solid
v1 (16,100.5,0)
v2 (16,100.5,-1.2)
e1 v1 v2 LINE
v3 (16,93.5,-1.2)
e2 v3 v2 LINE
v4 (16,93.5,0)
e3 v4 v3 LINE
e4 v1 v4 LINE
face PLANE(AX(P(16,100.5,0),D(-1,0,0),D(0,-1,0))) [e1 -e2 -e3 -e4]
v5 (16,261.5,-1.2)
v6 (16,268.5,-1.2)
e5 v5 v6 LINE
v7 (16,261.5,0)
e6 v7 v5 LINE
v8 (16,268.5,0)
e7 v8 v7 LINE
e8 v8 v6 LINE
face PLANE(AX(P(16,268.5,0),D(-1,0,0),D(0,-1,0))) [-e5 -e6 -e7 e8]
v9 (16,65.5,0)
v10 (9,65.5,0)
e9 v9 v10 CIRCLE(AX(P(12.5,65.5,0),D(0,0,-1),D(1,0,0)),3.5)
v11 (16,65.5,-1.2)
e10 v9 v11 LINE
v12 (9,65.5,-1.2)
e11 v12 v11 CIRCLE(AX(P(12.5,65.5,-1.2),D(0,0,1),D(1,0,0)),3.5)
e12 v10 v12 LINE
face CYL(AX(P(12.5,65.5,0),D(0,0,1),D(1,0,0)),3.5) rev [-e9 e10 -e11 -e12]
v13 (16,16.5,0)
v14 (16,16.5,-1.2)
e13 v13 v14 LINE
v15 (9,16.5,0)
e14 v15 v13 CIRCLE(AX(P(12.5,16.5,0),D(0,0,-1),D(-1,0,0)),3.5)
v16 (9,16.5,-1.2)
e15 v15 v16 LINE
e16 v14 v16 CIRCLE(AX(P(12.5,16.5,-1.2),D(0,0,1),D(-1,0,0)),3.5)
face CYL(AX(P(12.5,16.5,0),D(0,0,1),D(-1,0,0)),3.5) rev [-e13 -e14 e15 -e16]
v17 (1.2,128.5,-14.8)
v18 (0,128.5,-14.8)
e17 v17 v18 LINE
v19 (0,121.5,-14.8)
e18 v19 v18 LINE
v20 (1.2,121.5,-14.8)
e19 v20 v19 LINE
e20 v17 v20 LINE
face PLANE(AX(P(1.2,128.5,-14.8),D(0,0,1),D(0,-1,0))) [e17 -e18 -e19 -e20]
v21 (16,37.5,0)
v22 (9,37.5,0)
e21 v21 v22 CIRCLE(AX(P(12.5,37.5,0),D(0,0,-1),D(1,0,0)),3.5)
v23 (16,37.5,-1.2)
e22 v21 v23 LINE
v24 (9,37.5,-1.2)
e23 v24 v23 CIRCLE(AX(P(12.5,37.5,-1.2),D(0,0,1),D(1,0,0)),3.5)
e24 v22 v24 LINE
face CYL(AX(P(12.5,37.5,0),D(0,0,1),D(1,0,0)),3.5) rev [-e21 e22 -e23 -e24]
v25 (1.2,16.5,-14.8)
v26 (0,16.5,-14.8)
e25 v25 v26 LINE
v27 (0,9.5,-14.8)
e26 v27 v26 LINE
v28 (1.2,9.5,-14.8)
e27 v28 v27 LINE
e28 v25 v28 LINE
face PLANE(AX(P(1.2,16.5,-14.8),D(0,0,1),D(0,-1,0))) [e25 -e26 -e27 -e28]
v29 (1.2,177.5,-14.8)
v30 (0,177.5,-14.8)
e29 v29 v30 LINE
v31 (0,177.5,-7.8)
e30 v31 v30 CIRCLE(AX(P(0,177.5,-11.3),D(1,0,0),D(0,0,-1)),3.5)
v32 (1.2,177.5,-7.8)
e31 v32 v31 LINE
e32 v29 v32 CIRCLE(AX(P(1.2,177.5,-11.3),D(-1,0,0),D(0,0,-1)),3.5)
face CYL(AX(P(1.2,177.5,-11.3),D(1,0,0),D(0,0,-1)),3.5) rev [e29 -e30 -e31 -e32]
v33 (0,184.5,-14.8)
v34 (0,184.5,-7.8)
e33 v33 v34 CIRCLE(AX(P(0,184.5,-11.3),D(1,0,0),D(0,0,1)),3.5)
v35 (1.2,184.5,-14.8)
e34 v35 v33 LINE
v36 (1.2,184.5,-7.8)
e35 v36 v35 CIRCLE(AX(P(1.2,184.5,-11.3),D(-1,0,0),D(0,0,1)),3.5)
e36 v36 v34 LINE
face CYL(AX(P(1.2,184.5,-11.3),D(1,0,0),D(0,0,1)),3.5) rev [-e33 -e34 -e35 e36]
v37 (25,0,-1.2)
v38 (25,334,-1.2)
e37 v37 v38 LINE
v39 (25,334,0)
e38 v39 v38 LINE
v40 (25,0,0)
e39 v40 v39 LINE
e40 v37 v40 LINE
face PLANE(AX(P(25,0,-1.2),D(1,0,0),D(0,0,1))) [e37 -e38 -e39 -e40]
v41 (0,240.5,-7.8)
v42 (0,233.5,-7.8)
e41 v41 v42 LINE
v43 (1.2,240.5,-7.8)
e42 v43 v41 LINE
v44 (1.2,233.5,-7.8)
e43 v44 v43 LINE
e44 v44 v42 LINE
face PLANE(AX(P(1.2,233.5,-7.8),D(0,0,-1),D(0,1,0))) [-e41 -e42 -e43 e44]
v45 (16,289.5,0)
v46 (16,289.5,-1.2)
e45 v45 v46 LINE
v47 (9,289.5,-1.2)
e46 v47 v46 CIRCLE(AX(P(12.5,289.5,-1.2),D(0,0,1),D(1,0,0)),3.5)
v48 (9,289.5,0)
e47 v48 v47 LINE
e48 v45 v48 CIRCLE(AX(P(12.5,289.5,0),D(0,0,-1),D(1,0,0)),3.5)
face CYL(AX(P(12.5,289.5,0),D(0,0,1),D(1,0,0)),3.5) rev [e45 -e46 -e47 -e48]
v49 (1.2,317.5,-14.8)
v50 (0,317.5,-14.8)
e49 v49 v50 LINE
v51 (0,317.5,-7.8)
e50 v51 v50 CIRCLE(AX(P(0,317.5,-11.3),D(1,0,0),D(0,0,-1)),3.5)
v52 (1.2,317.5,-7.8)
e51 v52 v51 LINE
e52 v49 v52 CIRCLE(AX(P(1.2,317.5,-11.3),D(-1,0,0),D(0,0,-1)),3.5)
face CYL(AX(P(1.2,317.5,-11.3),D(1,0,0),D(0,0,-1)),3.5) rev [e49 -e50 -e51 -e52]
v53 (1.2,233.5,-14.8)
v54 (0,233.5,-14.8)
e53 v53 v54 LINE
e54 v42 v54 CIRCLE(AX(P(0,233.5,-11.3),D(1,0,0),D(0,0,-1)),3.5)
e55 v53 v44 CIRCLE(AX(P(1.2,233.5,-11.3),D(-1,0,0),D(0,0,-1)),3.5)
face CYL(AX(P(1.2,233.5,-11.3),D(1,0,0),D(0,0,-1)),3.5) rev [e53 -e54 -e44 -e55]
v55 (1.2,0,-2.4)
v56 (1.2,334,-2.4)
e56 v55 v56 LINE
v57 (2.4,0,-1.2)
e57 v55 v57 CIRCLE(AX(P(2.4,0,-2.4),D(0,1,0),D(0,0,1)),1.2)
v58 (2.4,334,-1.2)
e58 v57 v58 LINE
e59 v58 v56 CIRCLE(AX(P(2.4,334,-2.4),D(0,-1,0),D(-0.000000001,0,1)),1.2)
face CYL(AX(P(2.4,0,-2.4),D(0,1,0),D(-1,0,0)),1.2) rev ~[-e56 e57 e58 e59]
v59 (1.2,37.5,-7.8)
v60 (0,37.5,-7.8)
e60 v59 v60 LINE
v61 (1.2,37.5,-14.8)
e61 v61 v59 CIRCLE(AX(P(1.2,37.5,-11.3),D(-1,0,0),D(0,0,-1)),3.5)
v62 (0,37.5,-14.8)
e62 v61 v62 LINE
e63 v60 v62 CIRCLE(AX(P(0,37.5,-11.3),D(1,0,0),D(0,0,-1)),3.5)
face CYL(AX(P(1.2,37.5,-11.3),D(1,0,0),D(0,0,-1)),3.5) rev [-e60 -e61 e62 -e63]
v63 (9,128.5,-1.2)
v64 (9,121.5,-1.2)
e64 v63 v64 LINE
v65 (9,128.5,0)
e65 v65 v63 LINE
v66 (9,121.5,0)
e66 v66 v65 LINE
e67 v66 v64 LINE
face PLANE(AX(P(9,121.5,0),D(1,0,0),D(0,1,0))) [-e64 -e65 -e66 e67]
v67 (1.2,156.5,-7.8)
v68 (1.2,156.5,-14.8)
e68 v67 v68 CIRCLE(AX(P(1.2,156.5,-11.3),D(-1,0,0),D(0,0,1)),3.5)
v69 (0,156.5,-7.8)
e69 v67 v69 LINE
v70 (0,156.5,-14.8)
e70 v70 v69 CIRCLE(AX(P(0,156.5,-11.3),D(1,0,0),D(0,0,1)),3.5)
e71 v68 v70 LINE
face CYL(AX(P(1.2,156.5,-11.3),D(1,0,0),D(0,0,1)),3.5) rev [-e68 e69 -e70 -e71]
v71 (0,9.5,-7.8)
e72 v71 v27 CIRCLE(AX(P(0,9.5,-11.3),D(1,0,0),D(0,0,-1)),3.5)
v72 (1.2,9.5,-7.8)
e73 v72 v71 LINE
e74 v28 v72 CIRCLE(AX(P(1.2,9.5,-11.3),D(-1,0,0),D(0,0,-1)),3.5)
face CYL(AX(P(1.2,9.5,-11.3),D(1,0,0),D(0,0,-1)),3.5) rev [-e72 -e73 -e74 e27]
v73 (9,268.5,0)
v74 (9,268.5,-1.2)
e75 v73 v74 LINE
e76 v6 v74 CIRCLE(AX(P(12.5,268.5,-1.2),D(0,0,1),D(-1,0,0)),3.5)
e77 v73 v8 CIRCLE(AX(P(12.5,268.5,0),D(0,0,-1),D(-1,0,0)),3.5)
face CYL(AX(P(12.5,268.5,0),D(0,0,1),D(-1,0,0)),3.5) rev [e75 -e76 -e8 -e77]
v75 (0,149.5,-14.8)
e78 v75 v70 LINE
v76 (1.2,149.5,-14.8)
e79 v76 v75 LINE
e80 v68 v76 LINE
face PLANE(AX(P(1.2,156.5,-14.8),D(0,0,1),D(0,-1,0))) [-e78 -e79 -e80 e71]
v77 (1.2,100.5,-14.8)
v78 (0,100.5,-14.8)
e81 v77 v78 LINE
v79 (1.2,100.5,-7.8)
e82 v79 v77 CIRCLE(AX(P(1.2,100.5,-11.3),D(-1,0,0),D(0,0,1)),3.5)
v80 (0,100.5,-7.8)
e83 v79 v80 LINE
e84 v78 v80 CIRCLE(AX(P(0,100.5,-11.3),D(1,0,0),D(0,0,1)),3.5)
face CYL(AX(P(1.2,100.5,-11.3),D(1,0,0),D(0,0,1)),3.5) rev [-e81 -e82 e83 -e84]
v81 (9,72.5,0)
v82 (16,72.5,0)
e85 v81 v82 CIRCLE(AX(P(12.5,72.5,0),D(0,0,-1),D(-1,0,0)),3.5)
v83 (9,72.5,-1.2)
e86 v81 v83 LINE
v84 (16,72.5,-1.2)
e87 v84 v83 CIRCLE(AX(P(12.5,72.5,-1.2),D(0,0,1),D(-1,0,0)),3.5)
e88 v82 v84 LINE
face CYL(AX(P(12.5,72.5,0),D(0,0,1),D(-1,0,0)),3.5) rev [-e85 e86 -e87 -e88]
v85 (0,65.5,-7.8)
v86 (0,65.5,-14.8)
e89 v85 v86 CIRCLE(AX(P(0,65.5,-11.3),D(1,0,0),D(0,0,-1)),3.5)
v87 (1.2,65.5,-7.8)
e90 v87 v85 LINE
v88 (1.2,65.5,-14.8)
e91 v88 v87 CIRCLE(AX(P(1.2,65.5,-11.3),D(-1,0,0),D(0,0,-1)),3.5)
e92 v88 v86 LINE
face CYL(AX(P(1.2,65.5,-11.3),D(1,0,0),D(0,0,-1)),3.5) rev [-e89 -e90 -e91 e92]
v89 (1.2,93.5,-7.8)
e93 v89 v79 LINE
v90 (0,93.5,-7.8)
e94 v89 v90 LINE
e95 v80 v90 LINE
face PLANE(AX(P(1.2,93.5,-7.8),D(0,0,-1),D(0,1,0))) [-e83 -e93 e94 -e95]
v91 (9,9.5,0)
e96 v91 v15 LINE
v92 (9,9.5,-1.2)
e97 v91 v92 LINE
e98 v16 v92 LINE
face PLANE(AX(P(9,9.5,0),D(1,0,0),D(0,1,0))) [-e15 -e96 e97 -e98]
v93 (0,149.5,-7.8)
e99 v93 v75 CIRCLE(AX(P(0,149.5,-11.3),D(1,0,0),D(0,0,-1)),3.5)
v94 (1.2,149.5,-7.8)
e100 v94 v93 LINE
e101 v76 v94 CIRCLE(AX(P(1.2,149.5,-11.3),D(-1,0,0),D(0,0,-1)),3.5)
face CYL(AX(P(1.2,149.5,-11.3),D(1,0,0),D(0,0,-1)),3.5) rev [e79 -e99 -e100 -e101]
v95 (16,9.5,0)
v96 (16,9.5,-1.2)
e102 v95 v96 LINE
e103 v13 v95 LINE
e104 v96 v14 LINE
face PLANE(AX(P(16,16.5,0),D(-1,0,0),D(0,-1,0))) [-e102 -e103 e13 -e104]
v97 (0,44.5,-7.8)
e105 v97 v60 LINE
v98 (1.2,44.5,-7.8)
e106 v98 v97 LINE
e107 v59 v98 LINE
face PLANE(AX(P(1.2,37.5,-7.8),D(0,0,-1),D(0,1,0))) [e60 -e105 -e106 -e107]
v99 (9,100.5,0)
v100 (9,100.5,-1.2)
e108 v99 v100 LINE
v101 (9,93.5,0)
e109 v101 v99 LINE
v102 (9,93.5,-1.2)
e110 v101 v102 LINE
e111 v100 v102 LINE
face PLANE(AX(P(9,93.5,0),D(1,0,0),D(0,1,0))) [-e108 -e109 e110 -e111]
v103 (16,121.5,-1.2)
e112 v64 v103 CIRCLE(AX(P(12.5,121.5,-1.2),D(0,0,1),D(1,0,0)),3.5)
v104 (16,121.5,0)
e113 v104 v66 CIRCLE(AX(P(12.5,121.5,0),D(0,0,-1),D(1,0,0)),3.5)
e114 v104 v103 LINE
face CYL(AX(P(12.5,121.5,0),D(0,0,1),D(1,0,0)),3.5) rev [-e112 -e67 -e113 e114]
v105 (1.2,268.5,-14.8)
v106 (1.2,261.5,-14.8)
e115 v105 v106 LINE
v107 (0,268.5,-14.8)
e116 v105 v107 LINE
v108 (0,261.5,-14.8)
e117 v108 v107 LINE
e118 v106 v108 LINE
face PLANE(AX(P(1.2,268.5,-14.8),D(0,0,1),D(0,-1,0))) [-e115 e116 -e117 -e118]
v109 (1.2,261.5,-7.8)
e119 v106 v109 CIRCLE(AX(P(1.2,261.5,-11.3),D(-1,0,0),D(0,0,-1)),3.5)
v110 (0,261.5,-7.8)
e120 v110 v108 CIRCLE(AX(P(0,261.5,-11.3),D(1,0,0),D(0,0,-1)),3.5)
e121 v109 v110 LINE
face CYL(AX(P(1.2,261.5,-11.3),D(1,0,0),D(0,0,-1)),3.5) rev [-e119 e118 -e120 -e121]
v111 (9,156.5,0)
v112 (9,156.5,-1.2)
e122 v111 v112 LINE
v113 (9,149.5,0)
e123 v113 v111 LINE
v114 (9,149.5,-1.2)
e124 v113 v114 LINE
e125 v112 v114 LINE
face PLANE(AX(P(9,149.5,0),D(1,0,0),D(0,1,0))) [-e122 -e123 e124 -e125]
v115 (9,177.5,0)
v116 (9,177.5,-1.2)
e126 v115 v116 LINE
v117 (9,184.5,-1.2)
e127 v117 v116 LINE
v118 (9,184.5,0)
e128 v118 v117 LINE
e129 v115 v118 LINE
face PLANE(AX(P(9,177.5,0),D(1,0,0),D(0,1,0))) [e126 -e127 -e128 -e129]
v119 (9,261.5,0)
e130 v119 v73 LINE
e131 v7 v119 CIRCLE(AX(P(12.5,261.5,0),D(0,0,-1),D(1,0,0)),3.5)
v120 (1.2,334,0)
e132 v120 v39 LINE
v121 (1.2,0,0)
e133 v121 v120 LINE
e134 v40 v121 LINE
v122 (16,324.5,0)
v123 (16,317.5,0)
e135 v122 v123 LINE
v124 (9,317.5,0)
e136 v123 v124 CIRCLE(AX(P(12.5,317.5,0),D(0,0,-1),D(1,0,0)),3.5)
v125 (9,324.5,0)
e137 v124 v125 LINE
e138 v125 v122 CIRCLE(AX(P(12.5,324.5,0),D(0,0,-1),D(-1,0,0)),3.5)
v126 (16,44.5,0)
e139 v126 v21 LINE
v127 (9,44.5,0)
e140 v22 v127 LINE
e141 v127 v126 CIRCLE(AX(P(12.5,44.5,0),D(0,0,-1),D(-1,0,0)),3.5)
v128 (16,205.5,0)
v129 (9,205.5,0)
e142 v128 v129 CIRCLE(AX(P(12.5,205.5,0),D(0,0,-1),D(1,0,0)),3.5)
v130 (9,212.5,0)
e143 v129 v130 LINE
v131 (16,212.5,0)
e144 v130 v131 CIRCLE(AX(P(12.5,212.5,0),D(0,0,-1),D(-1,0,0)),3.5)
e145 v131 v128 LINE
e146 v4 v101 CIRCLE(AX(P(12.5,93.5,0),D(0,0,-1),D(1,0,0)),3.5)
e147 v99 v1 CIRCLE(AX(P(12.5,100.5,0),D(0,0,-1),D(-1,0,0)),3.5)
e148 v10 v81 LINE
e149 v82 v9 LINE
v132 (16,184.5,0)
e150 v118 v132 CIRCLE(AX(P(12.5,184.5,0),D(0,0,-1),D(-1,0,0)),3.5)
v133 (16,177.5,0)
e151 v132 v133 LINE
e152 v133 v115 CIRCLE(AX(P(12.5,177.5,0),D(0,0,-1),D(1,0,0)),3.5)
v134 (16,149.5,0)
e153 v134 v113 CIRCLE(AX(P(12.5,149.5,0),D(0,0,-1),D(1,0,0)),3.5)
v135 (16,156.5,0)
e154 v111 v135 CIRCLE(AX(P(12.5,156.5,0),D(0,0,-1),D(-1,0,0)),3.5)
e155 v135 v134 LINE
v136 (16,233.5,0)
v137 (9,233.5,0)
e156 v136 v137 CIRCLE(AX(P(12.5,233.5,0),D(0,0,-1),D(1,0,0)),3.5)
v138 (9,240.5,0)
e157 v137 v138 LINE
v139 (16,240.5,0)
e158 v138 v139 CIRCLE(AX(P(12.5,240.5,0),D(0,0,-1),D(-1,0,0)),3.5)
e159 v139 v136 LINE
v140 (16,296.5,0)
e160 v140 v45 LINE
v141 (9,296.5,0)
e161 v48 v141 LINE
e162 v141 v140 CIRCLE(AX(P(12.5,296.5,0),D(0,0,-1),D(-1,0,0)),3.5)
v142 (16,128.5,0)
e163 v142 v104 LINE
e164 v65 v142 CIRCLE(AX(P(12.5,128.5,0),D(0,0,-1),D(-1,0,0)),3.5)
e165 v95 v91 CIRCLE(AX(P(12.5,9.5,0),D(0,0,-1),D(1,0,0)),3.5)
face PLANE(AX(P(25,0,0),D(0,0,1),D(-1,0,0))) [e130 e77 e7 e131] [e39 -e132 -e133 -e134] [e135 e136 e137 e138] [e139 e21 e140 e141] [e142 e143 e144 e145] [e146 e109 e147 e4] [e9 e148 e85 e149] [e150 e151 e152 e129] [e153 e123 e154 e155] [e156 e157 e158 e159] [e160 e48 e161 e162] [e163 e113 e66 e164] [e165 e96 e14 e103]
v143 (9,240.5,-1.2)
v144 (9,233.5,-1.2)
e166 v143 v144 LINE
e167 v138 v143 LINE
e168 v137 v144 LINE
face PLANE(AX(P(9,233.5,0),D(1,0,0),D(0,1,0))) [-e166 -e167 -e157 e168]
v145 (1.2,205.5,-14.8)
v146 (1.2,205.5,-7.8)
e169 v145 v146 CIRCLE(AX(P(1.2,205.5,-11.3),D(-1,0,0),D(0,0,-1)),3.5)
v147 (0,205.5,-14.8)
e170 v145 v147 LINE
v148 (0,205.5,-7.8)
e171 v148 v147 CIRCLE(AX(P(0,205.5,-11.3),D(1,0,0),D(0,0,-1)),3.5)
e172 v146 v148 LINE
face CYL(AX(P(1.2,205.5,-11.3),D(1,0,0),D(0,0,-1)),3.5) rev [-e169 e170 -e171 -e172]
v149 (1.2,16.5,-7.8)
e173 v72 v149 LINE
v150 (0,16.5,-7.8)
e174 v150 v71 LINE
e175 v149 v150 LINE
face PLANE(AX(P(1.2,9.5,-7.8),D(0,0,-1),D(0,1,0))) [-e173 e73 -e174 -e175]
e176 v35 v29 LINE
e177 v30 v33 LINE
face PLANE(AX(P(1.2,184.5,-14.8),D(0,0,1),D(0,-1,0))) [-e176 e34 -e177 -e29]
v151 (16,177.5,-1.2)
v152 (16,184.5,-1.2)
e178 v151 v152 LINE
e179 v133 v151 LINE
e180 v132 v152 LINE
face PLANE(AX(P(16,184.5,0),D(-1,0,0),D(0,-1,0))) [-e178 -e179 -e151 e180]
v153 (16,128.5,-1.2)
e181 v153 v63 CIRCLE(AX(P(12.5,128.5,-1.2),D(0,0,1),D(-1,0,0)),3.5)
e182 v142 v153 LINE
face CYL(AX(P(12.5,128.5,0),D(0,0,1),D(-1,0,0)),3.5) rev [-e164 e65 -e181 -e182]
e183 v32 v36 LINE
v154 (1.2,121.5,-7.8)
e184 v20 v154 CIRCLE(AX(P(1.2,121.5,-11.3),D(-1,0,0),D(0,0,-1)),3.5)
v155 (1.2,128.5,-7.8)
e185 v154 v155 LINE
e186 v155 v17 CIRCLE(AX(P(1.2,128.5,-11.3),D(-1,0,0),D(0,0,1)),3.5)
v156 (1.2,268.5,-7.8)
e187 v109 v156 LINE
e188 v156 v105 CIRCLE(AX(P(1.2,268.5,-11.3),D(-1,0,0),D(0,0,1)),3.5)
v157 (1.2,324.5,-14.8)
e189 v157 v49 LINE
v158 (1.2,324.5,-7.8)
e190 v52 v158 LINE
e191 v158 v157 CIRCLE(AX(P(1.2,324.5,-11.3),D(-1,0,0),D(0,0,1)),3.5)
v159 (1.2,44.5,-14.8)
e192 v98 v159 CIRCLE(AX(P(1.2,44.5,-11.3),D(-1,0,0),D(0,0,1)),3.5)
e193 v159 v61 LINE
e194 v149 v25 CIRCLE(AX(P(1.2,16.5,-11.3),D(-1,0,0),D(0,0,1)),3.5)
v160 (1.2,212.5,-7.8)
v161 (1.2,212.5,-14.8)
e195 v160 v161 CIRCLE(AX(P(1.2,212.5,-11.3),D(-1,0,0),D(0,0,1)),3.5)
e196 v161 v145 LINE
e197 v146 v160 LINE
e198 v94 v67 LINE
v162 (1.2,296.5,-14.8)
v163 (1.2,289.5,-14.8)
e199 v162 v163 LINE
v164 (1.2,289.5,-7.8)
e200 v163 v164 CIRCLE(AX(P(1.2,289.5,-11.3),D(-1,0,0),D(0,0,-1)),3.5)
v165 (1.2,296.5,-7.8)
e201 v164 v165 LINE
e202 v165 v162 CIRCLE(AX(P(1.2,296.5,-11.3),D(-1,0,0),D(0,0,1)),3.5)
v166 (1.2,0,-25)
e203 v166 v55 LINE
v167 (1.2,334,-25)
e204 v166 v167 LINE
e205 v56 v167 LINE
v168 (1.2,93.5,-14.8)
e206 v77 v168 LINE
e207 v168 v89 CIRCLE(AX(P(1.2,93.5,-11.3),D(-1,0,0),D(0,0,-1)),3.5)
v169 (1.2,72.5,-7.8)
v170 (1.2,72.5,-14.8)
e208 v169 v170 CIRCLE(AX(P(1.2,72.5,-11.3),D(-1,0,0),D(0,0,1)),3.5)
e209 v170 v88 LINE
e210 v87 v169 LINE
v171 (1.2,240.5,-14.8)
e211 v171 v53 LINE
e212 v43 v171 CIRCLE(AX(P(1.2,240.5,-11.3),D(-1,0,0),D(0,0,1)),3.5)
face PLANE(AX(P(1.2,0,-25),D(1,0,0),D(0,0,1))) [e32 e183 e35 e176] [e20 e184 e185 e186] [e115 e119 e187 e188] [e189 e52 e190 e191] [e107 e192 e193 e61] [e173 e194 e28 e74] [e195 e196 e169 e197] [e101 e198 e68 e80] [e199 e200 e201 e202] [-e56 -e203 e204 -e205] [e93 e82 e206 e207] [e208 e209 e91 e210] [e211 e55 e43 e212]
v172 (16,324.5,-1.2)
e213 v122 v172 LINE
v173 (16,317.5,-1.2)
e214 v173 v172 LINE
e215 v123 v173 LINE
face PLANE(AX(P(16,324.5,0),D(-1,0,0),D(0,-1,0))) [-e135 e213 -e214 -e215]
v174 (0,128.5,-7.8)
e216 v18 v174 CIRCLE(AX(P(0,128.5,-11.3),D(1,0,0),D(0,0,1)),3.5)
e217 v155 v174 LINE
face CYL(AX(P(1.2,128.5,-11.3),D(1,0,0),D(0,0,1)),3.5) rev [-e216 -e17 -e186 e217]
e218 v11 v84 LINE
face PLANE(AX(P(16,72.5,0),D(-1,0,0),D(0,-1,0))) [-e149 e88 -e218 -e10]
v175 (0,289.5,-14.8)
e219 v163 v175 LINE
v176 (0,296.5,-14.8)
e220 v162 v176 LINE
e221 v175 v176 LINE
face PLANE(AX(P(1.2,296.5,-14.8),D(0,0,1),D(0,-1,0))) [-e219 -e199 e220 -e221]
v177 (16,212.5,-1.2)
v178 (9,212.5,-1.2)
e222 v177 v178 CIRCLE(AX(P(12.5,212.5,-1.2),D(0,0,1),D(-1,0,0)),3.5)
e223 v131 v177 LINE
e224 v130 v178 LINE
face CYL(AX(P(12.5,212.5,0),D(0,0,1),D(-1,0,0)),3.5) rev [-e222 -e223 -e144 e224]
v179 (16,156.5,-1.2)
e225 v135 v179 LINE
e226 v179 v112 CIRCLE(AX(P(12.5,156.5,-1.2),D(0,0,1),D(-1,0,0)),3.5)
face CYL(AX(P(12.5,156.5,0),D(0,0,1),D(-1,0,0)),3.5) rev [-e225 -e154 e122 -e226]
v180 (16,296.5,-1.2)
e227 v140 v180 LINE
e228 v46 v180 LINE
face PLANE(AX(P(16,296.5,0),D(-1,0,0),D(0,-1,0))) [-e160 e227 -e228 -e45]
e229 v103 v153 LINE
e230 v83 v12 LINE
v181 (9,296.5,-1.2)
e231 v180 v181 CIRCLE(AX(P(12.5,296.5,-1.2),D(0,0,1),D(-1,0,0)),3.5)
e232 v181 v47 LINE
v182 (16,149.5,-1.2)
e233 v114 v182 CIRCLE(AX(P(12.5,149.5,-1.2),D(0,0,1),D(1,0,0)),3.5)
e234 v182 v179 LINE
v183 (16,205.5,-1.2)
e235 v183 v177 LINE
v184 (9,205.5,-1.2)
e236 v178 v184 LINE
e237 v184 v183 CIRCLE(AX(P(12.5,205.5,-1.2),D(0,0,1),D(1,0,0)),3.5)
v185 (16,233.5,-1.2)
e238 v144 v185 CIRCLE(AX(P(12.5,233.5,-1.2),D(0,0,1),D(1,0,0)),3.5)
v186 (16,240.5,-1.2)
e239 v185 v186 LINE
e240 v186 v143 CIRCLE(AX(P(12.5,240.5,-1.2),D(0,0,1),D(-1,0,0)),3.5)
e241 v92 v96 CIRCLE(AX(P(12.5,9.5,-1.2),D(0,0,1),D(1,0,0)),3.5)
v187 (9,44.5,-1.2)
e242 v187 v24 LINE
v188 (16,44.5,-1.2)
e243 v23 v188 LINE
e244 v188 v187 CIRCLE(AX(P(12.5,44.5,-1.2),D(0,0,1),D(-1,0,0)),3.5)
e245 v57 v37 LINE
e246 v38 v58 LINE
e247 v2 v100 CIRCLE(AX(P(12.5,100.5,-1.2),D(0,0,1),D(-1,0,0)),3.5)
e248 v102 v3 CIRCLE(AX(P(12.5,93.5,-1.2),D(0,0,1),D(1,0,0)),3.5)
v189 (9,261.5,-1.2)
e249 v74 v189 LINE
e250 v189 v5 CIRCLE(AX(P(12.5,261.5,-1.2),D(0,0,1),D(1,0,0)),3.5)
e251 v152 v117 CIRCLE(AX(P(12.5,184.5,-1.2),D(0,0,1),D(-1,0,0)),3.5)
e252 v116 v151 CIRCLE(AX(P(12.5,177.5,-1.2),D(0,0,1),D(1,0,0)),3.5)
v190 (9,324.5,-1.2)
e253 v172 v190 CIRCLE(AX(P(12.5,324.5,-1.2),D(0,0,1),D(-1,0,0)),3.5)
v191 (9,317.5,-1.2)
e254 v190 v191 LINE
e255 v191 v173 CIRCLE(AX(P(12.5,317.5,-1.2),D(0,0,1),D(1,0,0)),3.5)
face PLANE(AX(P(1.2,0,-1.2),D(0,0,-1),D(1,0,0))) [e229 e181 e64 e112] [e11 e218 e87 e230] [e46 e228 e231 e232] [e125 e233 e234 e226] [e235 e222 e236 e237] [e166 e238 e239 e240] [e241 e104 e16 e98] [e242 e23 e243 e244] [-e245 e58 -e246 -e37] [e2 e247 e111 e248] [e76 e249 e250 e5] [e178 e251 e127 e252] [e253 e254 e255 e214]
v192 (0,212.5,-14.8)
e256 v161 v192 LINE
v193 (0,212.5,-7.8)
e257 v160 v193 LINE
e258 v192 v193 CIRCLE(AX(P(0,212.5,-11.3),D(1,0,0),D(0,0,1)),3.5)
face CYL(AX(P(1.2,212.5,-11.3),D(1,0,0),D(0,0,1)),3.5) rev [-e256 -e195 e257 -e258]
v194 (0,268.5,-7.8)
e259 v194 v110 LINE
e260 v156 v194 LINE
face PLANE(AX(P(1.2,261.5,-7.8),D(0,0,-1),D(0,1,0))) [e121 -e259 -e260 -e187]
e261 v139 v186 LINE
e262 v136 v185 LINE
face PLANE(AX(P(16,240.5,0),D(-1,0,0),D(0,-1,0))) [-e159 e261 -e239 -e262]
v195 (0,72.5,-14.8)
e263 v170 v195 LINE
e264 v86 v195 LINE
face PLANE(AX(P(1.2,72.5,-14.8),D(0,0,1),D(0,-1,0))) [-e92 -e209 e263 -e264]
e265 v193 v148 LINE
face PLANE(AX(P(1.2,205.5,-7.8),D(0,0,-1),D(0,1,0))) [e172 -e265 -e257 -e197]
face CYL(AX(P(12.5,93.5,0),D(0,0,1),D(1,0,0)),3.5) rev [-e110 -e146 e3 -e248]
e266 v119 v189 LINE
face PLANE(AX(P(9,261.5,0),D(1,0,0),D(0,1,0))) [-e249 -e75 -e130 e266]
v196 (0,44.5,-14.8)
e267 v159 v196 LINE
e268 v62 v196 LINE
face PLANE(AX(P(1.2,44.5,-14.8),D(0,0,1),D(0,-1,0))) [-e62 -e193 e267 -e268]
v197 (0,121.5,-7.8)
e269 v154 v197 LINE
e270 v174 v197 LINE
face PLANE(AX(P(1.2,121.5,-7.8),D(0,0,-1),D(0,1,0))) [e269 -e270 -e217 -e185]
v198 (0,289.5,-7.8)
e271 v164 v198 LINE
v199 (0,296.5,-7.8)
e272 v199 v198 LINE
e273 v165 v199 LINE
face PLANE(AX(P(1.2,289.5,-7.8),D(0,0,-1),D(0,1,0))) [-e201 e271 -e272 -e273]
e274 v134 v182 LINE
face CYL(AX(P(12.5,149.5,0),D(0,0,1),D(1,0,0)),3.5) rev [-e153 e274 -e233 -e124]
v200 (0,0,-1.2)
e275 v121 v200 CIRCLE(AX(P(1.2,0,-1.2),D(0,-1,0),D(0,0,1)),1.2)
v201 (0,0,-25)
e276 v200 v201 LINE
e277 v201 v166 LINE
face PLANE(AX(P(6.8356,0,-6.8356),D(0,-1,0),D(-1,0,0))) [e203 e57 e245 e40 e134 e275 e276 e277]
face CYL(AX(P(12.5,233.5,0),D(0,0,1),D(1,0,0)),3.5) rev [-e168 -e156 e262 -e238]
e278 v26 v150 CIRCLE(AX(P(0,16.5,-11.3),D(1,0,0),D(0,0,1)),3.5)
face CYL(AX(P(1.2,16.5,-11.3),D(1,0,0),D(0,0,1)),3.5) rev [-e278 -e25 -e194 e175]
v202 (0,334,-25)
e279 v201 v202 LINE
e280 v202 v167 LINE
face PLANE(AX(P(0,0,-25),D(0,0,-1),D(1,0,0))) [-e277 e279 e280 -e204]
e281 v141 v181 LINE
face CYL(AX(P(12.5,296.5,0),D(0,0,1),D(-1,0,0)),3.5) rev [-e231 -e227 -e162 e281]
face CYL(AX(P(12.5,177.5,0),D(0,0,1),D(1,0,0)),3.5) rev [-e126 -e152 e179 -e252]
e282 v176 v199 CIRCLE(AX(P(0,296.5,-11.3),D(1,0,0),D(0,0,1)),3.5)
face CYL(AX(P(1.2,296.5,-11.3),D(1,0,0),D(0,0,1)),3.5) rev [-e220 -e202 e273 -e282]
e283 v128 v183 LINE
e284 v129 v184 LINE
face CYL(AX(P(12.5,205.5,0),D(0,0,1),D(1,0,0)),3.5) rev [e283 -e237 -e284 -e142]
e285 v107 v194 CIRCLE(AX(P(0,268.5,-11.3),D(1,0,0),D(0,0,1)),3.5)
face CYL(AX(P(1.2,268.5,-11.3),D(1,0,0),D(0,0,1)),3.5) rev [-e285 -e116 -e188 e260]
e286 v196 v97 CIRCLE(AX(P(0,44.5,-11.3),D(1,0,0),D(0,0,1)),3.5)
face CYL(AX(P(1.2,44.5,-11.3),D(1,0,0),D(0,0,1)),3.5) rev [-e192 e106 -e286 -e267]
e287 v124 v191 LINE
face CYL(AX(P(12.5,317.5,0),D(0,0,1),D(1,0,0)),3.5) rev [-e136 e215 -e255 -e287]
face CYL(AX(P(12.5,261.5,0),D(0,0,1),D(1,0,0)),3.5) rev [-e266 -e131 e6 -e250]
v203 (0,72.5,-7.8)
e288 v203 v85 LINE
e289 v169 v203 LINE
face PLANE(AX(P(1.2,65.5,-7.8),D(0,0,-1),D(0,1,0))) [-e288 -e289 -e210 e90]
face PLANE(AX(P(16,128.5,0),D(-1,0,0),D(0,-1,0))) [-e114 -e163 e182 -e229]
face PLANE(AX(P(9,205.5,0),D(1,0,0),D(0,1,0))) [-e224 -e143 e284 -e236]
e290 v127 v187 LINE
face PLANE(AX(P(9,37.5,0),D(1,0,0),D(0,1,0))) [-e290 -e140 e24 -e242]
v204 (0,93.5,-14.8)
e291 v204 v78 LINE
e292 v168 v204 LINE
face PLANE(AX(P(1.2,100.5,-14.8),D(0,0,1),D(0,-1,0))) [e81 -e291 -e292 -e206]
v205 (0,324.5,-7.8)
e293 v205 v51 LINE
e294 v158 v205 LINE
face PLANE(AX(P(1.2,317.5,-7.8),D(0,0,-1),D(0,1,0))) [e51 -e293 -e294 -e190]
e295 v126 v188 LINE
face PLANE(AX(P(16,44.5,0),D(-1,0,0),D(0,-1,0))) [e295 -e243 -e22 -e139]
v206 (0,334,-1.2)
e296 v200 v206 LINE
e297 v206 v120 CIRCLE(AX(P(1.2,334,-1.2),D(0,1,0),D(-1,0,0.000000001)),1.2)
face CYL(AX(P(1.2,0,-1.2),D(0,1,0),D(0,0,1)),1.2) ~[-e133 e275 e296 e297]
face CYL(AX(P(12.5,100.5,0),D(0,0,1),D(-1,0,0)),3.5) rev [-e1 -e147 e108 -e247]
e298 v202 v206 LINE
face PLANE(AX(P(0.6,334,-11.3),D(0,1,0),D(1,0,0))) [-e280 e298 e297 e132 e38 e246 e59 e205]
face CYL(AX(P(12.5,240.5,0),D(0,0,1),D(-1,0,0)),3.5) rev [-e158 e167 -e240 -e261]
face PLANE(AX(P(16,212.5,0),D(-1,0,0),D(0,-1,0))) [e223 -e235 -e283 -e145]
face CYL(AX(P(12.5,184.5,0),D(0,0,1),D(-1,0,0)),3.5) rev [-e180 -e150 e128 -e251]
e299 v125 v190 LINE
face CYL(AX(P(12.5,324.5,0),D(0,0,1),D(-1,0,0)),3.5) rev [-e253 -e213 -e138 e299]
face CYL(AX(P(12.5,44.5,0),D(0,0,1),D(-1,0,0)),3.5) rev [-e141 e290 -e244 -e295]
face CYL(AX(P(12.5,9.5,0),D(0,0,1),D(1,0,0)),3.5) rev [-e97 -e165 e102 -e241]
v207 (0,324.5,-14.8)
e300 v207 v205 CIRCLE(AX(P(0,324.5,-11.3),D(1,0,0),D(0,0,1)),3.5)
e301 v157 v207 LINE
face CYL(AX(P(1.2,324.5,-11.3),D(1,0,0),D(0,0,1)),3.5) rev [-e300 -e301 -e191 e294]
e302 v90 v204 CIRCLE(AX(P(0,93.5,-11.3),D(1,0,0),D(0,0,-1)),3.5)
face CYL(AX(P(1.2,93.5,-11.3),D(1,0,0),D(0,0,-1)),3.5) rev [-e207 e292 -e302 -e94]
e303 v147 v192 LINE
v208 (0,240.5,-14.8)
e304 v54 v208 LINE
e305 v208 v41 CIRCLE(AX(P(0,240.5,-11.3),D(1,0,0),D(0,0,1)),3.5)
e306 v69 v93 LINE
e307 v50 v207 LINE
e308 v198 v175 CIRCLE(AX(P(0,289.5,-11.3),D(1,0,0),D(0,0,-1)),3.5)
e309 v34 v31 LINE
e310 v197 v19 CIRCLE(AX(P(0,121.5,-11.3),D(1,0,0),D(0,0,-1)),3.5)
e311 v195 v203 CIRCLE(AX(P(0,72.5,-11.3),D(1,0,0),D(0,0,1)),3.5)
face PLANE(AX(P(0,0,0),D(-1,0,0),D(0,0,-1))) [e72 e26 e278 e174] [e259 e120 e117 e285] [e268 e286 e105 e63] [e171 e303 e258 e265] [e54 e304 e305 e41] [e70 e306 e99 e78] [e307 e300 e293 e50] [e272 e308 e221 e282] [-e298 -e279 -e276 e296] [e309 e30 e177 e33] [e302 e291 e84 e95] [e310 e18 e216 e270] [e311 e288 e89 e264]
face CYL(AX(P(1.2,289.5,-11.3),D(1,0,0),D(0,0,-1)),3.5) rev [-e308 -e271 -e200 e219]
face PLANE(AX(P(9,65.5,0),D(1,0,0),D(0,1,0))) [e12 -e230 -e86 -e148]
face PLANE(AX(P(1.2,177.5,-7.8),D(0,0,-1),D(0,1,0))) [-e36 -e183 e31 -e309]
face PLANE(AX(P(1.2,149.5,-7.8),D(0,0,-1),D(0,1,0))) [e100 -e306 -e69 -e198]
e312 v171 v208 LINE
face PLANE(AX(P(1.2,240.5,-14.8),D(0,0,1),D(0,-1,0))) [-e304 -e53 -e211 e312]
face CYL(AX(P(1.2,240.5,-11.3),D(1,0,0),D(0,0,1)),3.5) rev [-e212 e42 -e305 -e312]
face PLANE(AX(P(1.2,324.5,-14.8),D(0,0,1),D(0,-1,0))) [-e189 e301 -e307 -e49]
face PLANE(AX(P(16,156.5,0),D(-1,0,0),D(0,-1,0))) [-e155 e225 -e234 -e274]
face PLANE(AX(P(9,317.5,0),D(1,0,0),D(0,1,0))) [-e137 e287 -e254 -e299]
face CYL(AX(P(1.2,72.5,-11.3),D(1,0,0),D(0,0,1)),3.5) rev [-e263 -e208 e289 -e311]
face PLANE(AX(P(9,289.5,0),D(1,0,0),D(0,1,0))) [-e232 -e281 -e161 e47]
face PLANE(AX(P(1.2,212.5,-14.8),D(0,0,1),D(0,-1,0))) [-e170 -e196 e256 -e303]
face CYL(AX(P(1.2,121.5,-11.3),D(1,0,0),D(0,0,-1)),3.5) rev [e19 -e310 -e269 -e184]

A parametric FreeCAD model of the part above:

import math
import FreeCAD as App
import Part
import Sketcher
from FreeCAD import Vector
Q = App.Units.Quantity


def edges_at(feature, points):
    """Names of the edges that pass closest to the given points."""
    edges = feature.Shape.Edges
    near = lambda p: min(range(len(edges)), key=lambda i: edges[i].distToShape(Part.Vertex(*p))[0])
    return sorted({f"Edge{near(p) + 1}" for p in points})


def add_polygon(sketch, points):
    """Adds a closed chain of lines whose ends are joined by coincident constraints."""
    first, n = sketch.GeometryCount, len(points)
    for a, b in zip(points, points[1:] + points[:1]):
        sketch.addGeometry(Part.LineSegment(App.Vector(*a, 0), App.Vector(*b, 0)), False)
    for i in range(n):
        sketch.addConstraint(Sketcher.Constraint("Coincident", first + i, 2, first + (i + 1) % n, 1))

doc = App.newDocument("Part")
body = doc.addObject("PartDesign::Body", "Body")

sketch1 = body.newObject("Sketcher::SketchObject", "Sketch")
sketch1.AttachmentSupport = (doc.getObject("XZ_Plane"), [""])
sketch1.MapMode = "FlatFace"
add_polygon(sketch1, [(0, 0), (25, 0), (25, -1.2), (1.2, -1.2), (1.2, -25), (0, -25)])
sketch1.addConstraint([
    Sketcher.Constraint("Horizontal", 0),
    Sketcher.Constraint("Vertical", 1),
    Sketcher.Constraint("Horizontal", 2),
    Sketcher.Constraint("Vertical", 3),
    Sketcher.Constraint("Horizontal", 4),
    Sketcher.Constraint("Vertical", 5),
    Sketcher.Constraint("Coincident", 5, 2, -1, 1),
    Sketcher.Constraint("Equal", 4, 1),
    Sketcher.Constraint("Equal", 2, 3),
    Sketcher.Constraint("DistanceX", 0, 1, 0, 2, Q("25 mm")),
    Sketcher.Constraint("DistanceX", 2, 2, 2, 1, Q("23.8 mm")),
])
pad1 = body.newObject("PartDesign::Pad", "Pad")
pad1.Profile = sketch1
pad1.Length = 350
pad1.Reversed = True
doc.recompute()

fillet = body.newObject("PartDesign::Fillet", "Fillet")
fillet.Base = (pad1, edges_at(pad1, [(0, 175, 0), (1.2, 175, -1.2)]))
fillet.Radius = 1.2

sketch2 = body.newObject("Sketcher::SketchObject", "Sketch001")
sketch2.AttachmentSupport = (doc.getObject("XY_Plane"), [""])
sketch2.MapMode = "FlatFace"
sketch2.addGeometry([
    Part.LineSegment(Vector(9, 16.5, 0), Vector(9, 9.5, 0)),
    Part.ArcOfCircle(Part.Circle(Vector(12.5, 9.5, 0), Vector(0, 0, 1), 3.5), math.radians(180), math.radians(360)),
    Part.LineSegment(Vector(16, 9.5, 0), Vector(16, 16.5, 0)),
    Part.ArcOfCircle(Part.Circle(Vector(12.5, 16.5, 0), Vector(0, 0, 1), 3.5), math.radians(0), math.radians(180)),
], False)
sketch2.addConstraint([
    Sketcher.Constraint("Tangent", 0, 2, 1, 1),
    Sketcher.Constraint("Tangent", 1, 2, 2, 1),
    Sketcher.Constraint("Tangent", 2, 2, 3, 1),
    Sketcher.Constraint("Tangent", 3, 2, 0, 1),
    Sketcher.Constraint("Vertical", 0),
    Sketcher.Constraint("Vertical", 2),
    Sketcher.Constraint("Radius", 1, Q("3.5 mm")),
    Sketcher.Constraint("DistanceY", 0, 2, 0, 1, Q("7 mm")),
    Sketcher.Constraint("DistanceX", -1, 1, 0, 2, Q("9 mm")),
    Sketcher.Constraint("DistanceY", -1, 1, 1, 3, Q("9.5 mm")),
])
pocket1 = body.newObject("PartDesign::Pocket", "Pocket")
pocket1.Profile = sketch2
pocket1.Type = "ThroughAll"
doc.recompute()

linearpattern = body.newObject("PartDesign::LinearPattern", "LinearPattern")
linearpattern.Originals = [pocket1]
linearpattern.Direction = (doc.getObject("Y_Axis"), [""])
linearpattern.Mode = "offset"
linearpattern.Offset = 28
linearpattern.Occurrences = 14
body.Tip = linearpattern
doc.recompute()

datumline = body.newObject("PartDesign::Line", "DatumLine")
datumline.Placement = App.Placement(Vector(1.2, 0, 0), App.Rotation(Vector(0, 0, 1), Vector(0, -1, 0)))
polarpattern = body.newObject("PartDesign::PolarPattern", "PolarPattern")
polarpattern.Originals = [pocket1]
polarpattern.Axis = (datumline, [""])
polarpattern.Angle = 270
polarpattern.Occurrences = 2
body.Tip = polarpattern

sketch3 = body.newObject("Sketcher::SketchObject", "Sketch002")
sketch3.AttachmentSupport = (doc.getObject("YZ_Plane"), [""])
sketch3.MapMode = "FlatFace"
sketch3.AttachmentOffset = App.Placement(Vector(0, 0, 1.2), App.Rotation())
sketch3.addGeometry([
    Part.LineSegment(Vector(44.5, -7.8, 0), Vector(37.5, -7.8, 0)),
    Part.ArcOfCircle(Part.Circle(Vector(37.5, -11.3, 0), Vector(0, 0, 1), 3.5), math.radians(90), math.radians(270)),
    Part.LineSegment(Vector(37.5, -14.8, 0), Vector(44.5, -14.8, 0)),
    Part.ArcOfCircle(Part.Circle(Vector(44.5, -11.3, 0), Vector(0, 0, 1), 3.5), math.radians(-90), math.radians(90)),
], False)
sketch3.addConstraint([
    Sketcher.Constraint("Tangent", 0, 2, 1, 1),
    Sketcher.Constraint("Tangent", 1, 2, 2, 1),
    Sketcher.Constraint("Tangent", 2, 2, 3, 1),
    Sketcher.Constraint("Tangent", 3, 2, 0, 1),
    Sketcher.Constraint("Horizontal", 0),
    Sketcher.Constraint("Horizontal", 2),
    Sketcher.Constraint("Radius", 1, Q("3.5 mm")),
    Sketcher.Constraint("DistanceX", 0, 2, 0, 1, Q("7 mm")),
    Sketcher.Constraint("DistanceX", -1, 1, 1, 3, Q("37.5 mm")),
    Sketcher.Constraint("DistanceY", 1, 3, -1, 1, Q("11.3 mm")),
])
pocket2 = body.newObject("PartDesign::Pocket", "Pocket001")
pocket2.Profile = sketch3
pocket2.Type = "ThroughAll"

sketch4 = body.newObject("Sketcher::SketchObject", "Sketch003")
sketch4.AttachmentSupport = (doc.getObject("YZ_Plane"), [""])
sketch4.MapMode = "FlatFace"
sketch4.AttachmentOffset = App.Placement(Vector(0, 0, 1.2), App.Rotation())
sketch4.addGeometry([
    Part.LineSegment(Vector(72.5, -7.8, 0), Vector(65.5, -7.8, 0)),
    Part.ArcOfCircle(Part.Circle(Vector(65.5, -11.3, 0), Vector(0, 0, 1), 3.5), math.radians(90), math.radians(270)),
    Part.LineSegment(Vector(65.5, -14.8, 0), Vector(72.5, -14.8, 0)),
    Part.ArcOfCircle(Part.Circle(Vector(72.5, -11.3, 0), Vector(0, 0, 1), 3.5), math.radians(-90), math.radians(90)),
], False)
sketch4.addConstraint([
    Sketcher.Constraint("Tangent", 0, 2, 1, 1),
    Sketcher.Constraint("Tangent", 1, 2, 2, 1),
    Sketcher.Constraint("Tangent", 2, 2, 3, 1),
    Sketcher.Constraint("Tangent", 3, 2, 0, 1),
    Sketcher.Constraint("Horizontal", 0),
    Sketcher.Constraint("Horizontal", 2),
    Sketcher.Constraint("Radius", 1, Q("3.5 mm")),
    Sketcher.Constraint("DistanceX", 0, 2, 0, 1, Q("7 mm")),
    Sketcher.Constraint("DistanceX", -1, 1, 1, 3, Q("65.5 mm")),
    Sketcher.Constraint("DistanceY", 1, 3, -1, 1, Q("11.3 mm")),
])
pocket3 = body.newObject("PartDesign::Pocket", "Pocket002")
pocket3.Profile = sketch4
pocket3.Type = "ThroughAll"

sketch5 = body.newObject("Sketcher::SketchObject", "Sketch004")
sketch5.AttachmentSupport = (doc.getObject("YZ_Plane"), [""])
sketch5.MapMode = "FlatFace"
sketch5.AttachmentOffset = App.Placement(Vector(0, 0, 1.2), App.Rotation())
sketch5.addGeometry([
    Part.LineSegment(Vector(100.5, -7.8, 0), Vector(93.5, -7.8, 0)),
    Part.ArcOfCircle(Part.Circle(Vector(93.5, -11.3, 0), Vector(0, 0, 1), 3.5), math.radians(90), math.radians(270)),
    Part.LineSegment(Vector(93.5, -14.8, 0), Vector(100.5, -14.8, 0)),
    Part.ArcOfCircle(Part.Circle(Vector(100.5, -11.3, 0), Vector(0, 0, 1), 3.5), math.radians(-90), math.radians(90)),
], False)
sketch5.addConstraint([
    Sketcher.Constraint("Tangent", 0, 2, 1, 1),
    Sketcher.Constraint("Tangent", 1, 2, 2, 1),
    Sketcher.Constraint("Tangent", 2, 2, 3, 1),
    Sketcher.Constraint("Tangent", 3, 2, 0, 1),
    Sketcher.Constraint("Horizontal", 0),
    Sketcher.Constraint("Horizontal", 2),
    Sketcher.Constraint("Radius", 1, Q("3.5 mm")),
    Sketcher.Constraint("DistanceX", 0, 2, 0, 1, Q("7 mm")),
    Sketcher.Constraint("DistanceX", -1, 1, 1, 3, Q("93.5 mm")),
    Sketcher.Constraint("DistanceY", 1, 3, -1, 1, Q("11.3 mm")),
])
pocket4 = body.newObject("PartDesign::Pocket", "Pocket003")
pocket4.Profile = sketch5
pocket4.Type = "ThroughAll"

sketch6 = body.newObject("Sketcher::SketchObject", "Sketch005")
sketch6.AttachmentSupport = (doc.getObject("YZ_Plane"), [""])
sketch6.MapMode = "FlatFace"
sketch6.AttachmentOffset = App.Placement(Vector(0, 0, 1.2), App.Rotation())
sketch6.addGeometry([
    Part.LineSegment(Vector(128.5, -7.8, 0), Vector(121.5, -7.8, 0)),
    Part.ArcOfCircle(Part.Circle(Vector(121.5, -11.3, 0), Vector(0, 0, 1), 3.5), math.radians(90), math.radians(270)),
    Part.LineSegment(Vector(121.5, -14.8, 0), Vector(128.5, -14.8, 0)),
    Part.ArcOfCircle(Part.Circle(Vector(128.5, -11.3, 0), Vector(0, 0, 1), 3.5), math.radians(-90), math.radians(90)),
], False)
sketch6.addConstraint([
    Sketcher.Constraint("Tangent", 0, 2, 1, 1),
    Sketcher.Constraint("Tangent", 1, 2, 2, 1),
    Sketcher.Constraint("Tangent", 2, 2, 3, 1),
    Sketcher.Constraint("Tangent", 3, 2, 0, 1),
    Sketcher.Constraint("Horizontal", 0),
    Sketcher.Constraint("Horizontal", 2),
    Sketcher.Constraint("Radius", 1, Q("3.5 mm")),
    Sketcher.Constraint("DistanceX", 0, 2, 0, 1, Q("7 mm")),
    Sketcher.Constraint("DistanceX", -1, 1, 1, 3, Q("121.5 mm")),
    Sketcher.Constraint("DistanceY", 1, 3, -1, 1, Q("11.3 mm")),
])
pocket5 = body.newObject("PartDesign::Pocket", "Pocket004")
pocket5.Profile = sketch6
pocket5.Type = "ThroughAll"

sketch7 = body.newObject("Sketcher::SketchObject", "Sketch006")
sketch7.AttachmentSupport = (doc.getObject("YZ_Plane"), [""])
sketch7.MapMode = "FlatFace"
sketch7.AttachmentOffset = App.Placement(Vector(0, 0, 1.2), App.Rotation())
sketch7.addGeometry([
    Part.LineSegment(Vector(156.5, -7.8, 0), Vector(149.5, -7.8, 0)),
    Part.ArcOfCircle(Part.Circle(Vector(149.5, -11.3, 0), Vector(0, 0, 1), 3.5), math.radians(90), math.radians(270)),
    Part.LineSegment(Vector(149.5, -14.8, 0), Vector(156.5, -14.8, 0)),
    Part.ArcOfCircle(Part.Circle(Vector(156.5, -11.3, 0), Vector(0, 0, 1), 3.5), math.radians(-90), math.radians(90)),
], False)
sketch7.addConstraint([
    Sketcher.Constraint("Tangent", 0, 2, 1, 1),
    Sketcher.Constraint("Tangent", 1, 2, 2, 1),
    Sketcher.Constraint("Tangent", 2, 2, 3, 1),
    Sketcher.Constraint("Tangent", 3, 2, 0, 1),
    Sketcher.Constraint("Horizontal", 0),
    Sketcher.Constraint("Horizontal", 2),
    Sketcher.Constraint("Radius", 1, Q("3.5 mm")),
    Sketcher.Constraint("DistanceX", 0, 2, 0, 1, Q("7 mm")),
    Sketcher.Constraint("DistanceX", -1, 1, 1, 3, Q("149.5 mm")),
    Sketcher.Constraint("DistanceY", 1, 3, -1, 1, Q("11.3 mm")),
])
pocket6 = body.newObject("PartDesign::Pocket", "Pocket005")
pocket6.Profile = sketch7
pocket6.Type = "ThroughAll"

sketch8 = body.newObject("Sketcher::SketchObject", "Sketch007")
sketch8.AttachmentSupport = (doc.getObject("YZ_Plane"), [""])
sketch8.MapMode = "FlatFace"
sketch8.AttachmentOffset = App.Placement(Vector(0, 0, 1.2), App.Rotation())
sketch8.addGeometry([
    Part.LineSegment(Vector(184.5, -7.8, 0), Vector(177.5, -7.8, 0)),
    Part.ArcOfCircle(Part.Circle(Vector(177.5, -11.3, 0), Vector(0, 0, 1), 3.5), math.radians(90), math.radians(270)),
    Part.LineSegment(Vector(177.5, -14.8, 0), Vector(184.5, -14.8, 0)),
    Part.ArcOfCircle(Part.Circle(Vector(184.5, -11.3, 0), Vector(0, 0, 1), 3.5), math.radians(-90), math.radians(90)),
], False)
sketch8.addConstraint([
    Sketcher.Constraint("Tangent", 0, 2, 1, 1),
    Sketcher.Constraint("Tangent", 1, 2, 2, 1),
    Sketcher.Constraint("Tangent", 2, 2, 3, 1),
    Sketcher.Constraint("Tangent", 3, 2, 0, 1),
    Sketcher.Constraint("Horizontal", 0),
    Sketcher.Constraint("Horizontal", 2),
    Sketcher.Constraint("Radius", 1, Q("3.5 mm")),
    Sketcher.Constraint("DistanceX", 0, 2, 0, 1, Q("7 mm")),
    Sketcher.Constraint("DistanceX", -1, 1, 1, 3, Q("177.5 mm")),
    Sketcher.Constraint("DistanceY", 1, 3, -1, 1, Q("11.3 mm")),
])
pocket7 = body.newObject("PartDesign::Pocket", "Pocket006")
pocket7.Profile = sketch8
pocket7.Type = "ThroughAll"

sketch9 = body.newObject("Sketcher::SketchObject", "Sketch008")
sketch9.AttachmentSupport = (doc.getObject("YZ_Plane"), [""])
sketch9.MapMode = "FlatFace"
sketch9.AttachmentOffset = App.Placement(Vector(0, 0, 1.2), App.Rotation())
sketch9.addGeometry([
    Part.LineSegment(Vector(212.5, -7.8, 0), Vector(205.5, -7.8, 0)),
    Part.ArcOfCircle(Part.Circle(Vector(205.5, -11.3, 0), Vector(0, 0, 1), 3.5), math.radians(90), math.radians(270)),
    Part.LineSegment(Vector(205.5, -14.8, 0), Vector(212.5, -14.8, 0)),
    Part.ArcOfCircle(Part.Circle(Vector(212.5, -11.3, 0), Vector(0, 0, 1), 3.5), math.radians(-90), math.radians(90)),
], False)
sketch9.addConstraint([
    Sketcher.Constraint("Tangent", 0, 2, 1, 1),
    Sketcher.Constraint("Tangent", 1, 2, 2, 1),
    Sketcher.Constraint("Tangent", 2, 2, 3, 1),
    Sketcher.Constraint("Tangent", 3, 2, 0, 1),
    Sketcher.Constraint("Horizontal", 0),
    Sketcher.Constraint("Horizontal", 2),
    Sketcher.Constraint("Radius", 1, Q("3.5 mm")),
    Sketcher.Constraint("DistanceX", 0, 2, 0, 1, Q("7 mm")),
    Sketcher.Constraint("DistanceX", -1, 1, 1, 3, Q("205.5 mm")),
    Sketcher.Constraint("DistanceY", 1, 3, -1, 1, Q("11.3 mm")),
])
pocket8 = body.newObject("PartDesign::Pocket", "Pocket007")
pocket8.Profile = sketch9
pocket8.Type = "ThroughAll"

sketch10 = body.newObject("Sketcher::SketchObject", "Sketch009")
sketch10.AttachmentSupport = (doc.getObject("YZ_Plane"), [""])
sketch10.MapMode = "FlatFace"
sketch10.AttachmentOffset = App.Placement(Vector(0, 0, 1.2), App.Rotation())
sketch10.addGeometry([
    Part.LineSegment(Vector(240.5, -7.8, 0), Vector(233.5, -7.8, 0)),
    Part.ArcOfCircle(Part.Circle(Vector(233.5, -11.3, 0), Vector(0, 0, 1), 3.5), math.radians(90), math.radians(270)),
    Part.LineSegment(Vector(233.5, -14.8, 0), Vector(240.5, -14.8, 0)),
    Part.ArcOfCircle(Part.Circle(Vector(240.5, -11.3, 0), Vector(0, 0, 1), 3.5), math.radians(-90), math.radians(90)),
], False)
sketch10.addConstraint([
    Sketcher.Constraint("Tangent", 0, 2, 1, 1),
    Sketcher.Constraint("Tangent", 1, 2, 2, 1),
    Sketcher.Constraint("Tangent", 2, 2, 3, 1),
    Sketcher.Constraint("Tangent", 3, 2, 0, 1),
    Sketcher.Constraint("Horizontal", 0),
    Sketcher.Constraint("Horizontal", 2),
    Sketcher.Constraint("Radius", 1, Q("3.5 mm")),
    Sketcher.Constraint("DistanceX", 0, 2, 0, 1, Q("7 mm")),
    Sketcher.Constraint("DistanceX", -1, 1, 1, 3, Q("233.5 mm")),
    Sketcher.Constraint("DistanceY", 1, 3, -1, 1, Q("11.3 mm")),
])
pocket9 = body.newObject("PartDesign::Pocket", "Pocket008")
pocket9.Profile = sketch10
pocket9.Type = "ThroughAll"

sketch11 = body.newObject("Sketcher::SketchObject", "Sketch010")
sketch11.AttachmentSupport = (doc.getObject("YZ_Plane"), [""])
sketch11.MapMode = "FlatFace"
sketch11.AttachmentOffset = App.Placement(Vector(0, 0, 1.2), App.Rotation())
sketch11.addGeometry([
    Part.LineSegment(Vector(268.5, -7.8, 0), Vector(261.5, -7.8, 0)),
    Part.ArcOfCircle(Part.Circle(Vector(261.5, -11.3, 0), Vector(0, 0, 1), 3.5), math.radians(90), math.radians(270)),
    Part.LineSegment(Vector(261.5, -14.8, 0), Vector(268.5, -14.8, 0)),
    Part.ArcOfCircle(Part.Circle(Vector(268.5, -11.3, 0), Vector(0, 0, 1), 3.5), math.radians(-90), math.radians(90)),
], False)
sketch11.addConstraint([
    Sketcher.Constraint("Tangent", 0, 2, 1, 1),
    Sketcher.Constraint("Tangent", 1, 2, 2, 1),
    Sketcher.Constraint("Tangent", 2, 2, 3, 1),
    Sketcher.Constraint("Tangent", 3, 2, 0, 1),
    Sketcher.Constraint("Horizontal", 0),
    Sketcher.Constraint("Horizontal", 2),
    Sketcher.Constraint("Radius", 1, Q("3.5 mm")),
    Sketcher.Constraint("DistanceX", 0, 2, 0, 1, Q("7 mm")),
    Sketcher.Constraint("DistanceX", -1, 1, 1, 3, Q("261.5 mm")),
    Sketcher.Constraint("DistanceY", 1, 3, -1, 1, Q("11.3 mm")),
])
pocket10 = body.newObject("PartDesign::Pocket", "Pocket009")
pocket10.Profile = sketch11
pocket10.Type = "ThroughAll"

sketch12 = body.newObject("Sketcher::SketchObject", "Sketch011")
sketch12.AttachmentSupport = (doc.getObject("YZ_Plane"), [""])
sketch12.MapMode = "FlatFace"
sketch12.AttachmentOffset = App.Placement(Vector(0, 0, 1.2), App.Rotation())
sketch12.addGeometry([
    Part.LineSegment(Vector(296.5, -7.8, 0), Vector(289.5, -7.8, 0)),
    Part.ArcOfCircle(Part.Circle(Vector(289.5, -11.3, 0), Vector(0, 0, 1), 3.5), math.radians(90), math.radians(270)),
    Part.LineSegment(Vector(289.5, -14.8, 0), Vector(296.5, -14.8, 0)),
    Part.ArcOfCircle(Part.Circle(Vector(296.5, -11.3, 0), Vector(0, 0, 1), 3.5), math.radians(-90), math.radians(90)),
], False)
sketch12.addConstraint([
    Sketcher.Constraint("Tangent", 0, 2, 1, 1),
    Sketcher.Constraint("Tangent", 1, 2, 2, 1),
    Sketcher.Constraint("Tangent", 2, 2, 3, 1),
    Sketcher.Constraint("Tangent", 3, 2, 0, 1),
    Sketcher.Constraint("Horizontal", 0),
    Sketcher.Constraint("Horizontal", 2),
    Sketcher.Constraint("Radius", 1, Q("3.5 mm")),
    Sketcher.Constraint("DistanceX", 0, 2, 0, 1, Q("7 mm")),
    Sketcher.Constraint("DistanceX", -1, 1, 1, 3, Q("289.5 mm")),
    Sketcher.Constraint("DistanceY", 1, 3, -1, 1, Q("11.3 mm")),
])
pocket11 = body.newObject("PartDesign::Pocket", "Pocket010")
pocket11.Profile = sketch12
pocket11.Type = "ThroughAll"

sketch13 = body.newObject("Sketcher::SketchObject", "Sketch012")
sketch13.AttachmentSupport = (doc.getObject("YZ_Plane"), [""])
sketch13.MapMode = "FlatFace"
sketch13.AttachmentOffset = App.Placement(Vector(0, 0, 1.2), App.Rotation())
sketch13.addGeometry([
    Part.LineSegment(Vector(324.5, -7.8, 0), Vector(317.5, -7.8, 0)),
    Part.ArcOfCircle(Part.Circle(Vector(317.5, -11.3, 0), Vector(0, 0, 1), 3.5), math.radians(90), math.radians(270)),
    Part.LineSegment(Vector(317.5, -14.8, 0), Vector(324.5, -14.8, 0)),
    Part.ArcOfCircle(Part.Circle(Vector(324.5, -11.3, 0), Vector(0, 0, 1), 3.5), math.radians(-90), math.radians(90)),
], False)
sketch13.addConstraint([
    Sketcher.Constraint("Tangent", 0, 2, 1, 1),
    Sketcher.Constraint("Tangent", 1, 2, 2, 1),
    Sketcher.Constraint("Tangent", 2, 2, 3, 1),
    Sketcher.Constraint("Tangent", 3, 2, 0, 1),
    Sketcher.Constraint("Horizontal", 0),
    Sketcher.Constraint("Horizontal", 2),
    Sketcher.Constraint("Radius", 1, Q("3.5 mm")),
    Sketcher.Constraint("DistanceX", 0, 2, 0, 1, Q("7 mm")),
    Sketcher.Constraint("DistanceX", -1, 1, 1, 3, Q("317.5 mm")),
    Sketcher.Constraint("DistanceY", 1, 3, -1, 1, Q("11.3 mm")),
])
pocket12 = body.newObject("PartDesign::Pocket", "Pocket011")
pocket12.Profile = sketch13
pocket12.Type = "ThroughAll"

sketch14 = body.newObject("Sketcher::SketchObject", "Sketch013")
sketch14.AttachmentSupport = (doc.getObject("YZ_Plane"), [""])
sketch14.MapMode = "FlatFace"
sketch14.AttachmentOffset = App.Placement(Vector(0, 0, 1.2), App.Rotation())
sketch14.addGeometry([
    Part.LineSegment(Vector(352.5, -7.8, 0), Vector(345.5, -7.8, 0)),
    Part.ArcOfCircle(Part.Circle(Vector(345.5, -11.3, 0), Vector(0, 0, 1), 3.5), math.radians(90), math.radians(270)),
    Part.LineSegment(Vector(345.5, -14.8, 0), Vector(352.5, -14.8, 0)),
    Part.ArcOfCircle(Part.Circle(Vector(352.5, -11.3, 0), Vector(0, 0, 1), 3.5), math.radians(-90), math.radians(90)),
], False)
sketch14.addConstraint([
    Sketcher.Constraint("Tangent", 0, 2, 1, 1),
    Sketcher.Constraint("Tangent", 1, 2, 2, 1),
    Sketcher.Constraint("Tangent", 2, 2, 3, 1),
    Sketcher.Constraint("Tangent", 3, 2, 0, 1),
    Sketcher.Constraint("Horizontal", 0),
    Sketcher.Constraint("Horizontal", 2),
    Sketcher.Constraint("Radius", 1, Q("3.5 mm")),
    Sketcher.Constraint("DistanceX", 0, 2, 0, 1, Q("7 mm")),
    Sketcher.Constraint("DistanceX", -1, 1, 1, 3, Q("345.5 mm")),
    Sketcher.Constraint("DistanceY", 1, 3, -1, 1, Q("11.3 mm")),
])
pocket13 = body.newObject("PartDesign::Pocket", "Pocket012")
pocket13.Profile = sketch14
pocket13.Type = "ThroughAll"

sketch15 = body.newObject("Sketcher::SketchObject", "Sketch014")
sketch15.AttachmentSupport = (doc.getObject("YZ_Plane"), [""])
sketch15.MapMode = "FlatFace"
sketch15.AttachmentOffset = App.Placement(Vector(0, 0, 1.2), App.Rotation())
sketch15.addGeometry([
    Part.LineSegment(Vector(380.5, -7.8, 0), Vector(373.5, -7.8, 0)),
    Part.ArcOfCircle(Part.Circle(Vector(373.5, -11.3, 0), Vector(0, 0, 1), 3.5), math.radians(90), math.radians(270)),
    Part.LineSegment(Vector(373.5, -14.8, 0), Vector(380.5, -14.8, 0)),
    Part.ArcOfCircle(Part.Circle(Vector(380.5, -11.3, 0), Vector(0, 0, 1), 3.5), math.radians(-90), math.radians(90)),
], False)
sketch15.addConstraint([
    Sketcher.Constraint("Tangent", 0, 2, 1, 1),
    Sketcher.Constraint("Tangent", 1, 2, 2, 1),
    Sketcher.Constraint("Tangent", 2, 2, 3, 1),
    Sketcher.Constraint("Tangent", 3, 2, 0, 1),
    Sketcher.Constraint("Horizontal", 0),
    Sketcher.Constraint("Horizontal", 2),
    Sketcher.Constraint("Radius", 1, Q("3.5 mm")),
    Sketcher.Constraint("DistanceX", 0, 2, 0, 1, Q("7 mm")),
    Sketcher.Constraint("DistanceX", -1, 1, 1, 3, Q("373.5 mm")),
    Sketcher.Constraint("DistanceY", 1, 3, -1, 1, Q("11.3 mm")),
])
pocket14 = body.newObject("PartDesign::Pocket", "Pocket013")
pocket14.Profile = sketch15
pocket14.Type = "ThroughAll"

sketch16 = body.newObject("Sketcher::SketchObject", "Sketch015")
sketch16.AttachmentSupport = (doc.getObject("XZ_Plane"), [""])
sketch16.MapMode = "FlatFace"
sketch16.AttachmentOffset = App.Placement(Vector(0, 0, -350), App.Rotation())
sketch16.addGeometry([
    Part.LineSegment(Vector(1.2, -25, 0), Vector(0, -25, 0)),
    Part.LineSegment(Vector(0, -25, 0), Vector(0, -1.2, 0)),
    Part.ArcOfCircle(Part.Circle(Vector(1.2, -1.2, 0), Vector(0, 0, 1), 1.2), math.radians(90), math.radians(180)),
    Part.LineSegment(Vector(1.2, 0, 0), Vector(25, 0, 0)),
    Part.LineSegment(Vector(25, 0, 0), Vector(25, -1.2, 0)),
    Part.LineSegment(Vector(25, -1.2, 0), Vector(2.4, -1.2, 0)),
    Part.ArcOfCircle(Part.Circle(Vector(2.4, -2.4, 0), Vector(0, 0, 1), 1.2), math.radians(90), math.radians(180)),
    Part.LineSegment(Vector(1.2, -2.4, 0), Vector(1.2, -25, 0)),
], False)
sketch16.addConstraint([
    Sketcher.Constraint("Coincident", 0, 2, 1, 1),
    Sketcher.Constraint("Tangent", 1, 2, 2, 2),
    Sketcher.Constraint("Tangent", 2, 1, 3, 1),
    Sketcher.Constraint("Coincident", 3, 2, 4, 1),
    Sketcher.Constraint("Coincident", 4, 2, 5, 1),
    Sketcher.Constraint("Tangent", 5, 2, 6, 1),
    Sketcher.Constraint("Tangent", 6, 2, 7, 1),
    Sketcher.Constraint("Coincident", 7, 2, 0, 1),
    Sketcher.Constraint("Horizontal", 0),
    Sketcher.Constraint("Vertical", 1),
    Sketcher.Constraint("Horizontal", 3),
    Sketcher.Constraint("Vertical", 4),
    Sketcher.Constraint("Horizontal", 5),
    Sketcher.Constraint("Vertical", 7),
    Sketcher.Constraint("Equal", 2, 6),
    Sketcher.Constraint("PointOnObject", 0, 2, -2),
    Sketcher.Constraint("PointOnObject", 2, 1, -1),
    Sketcher.Constraint("Horizontal", 1, 2, 4, 2),
    Sketcher.Constraint("Vertical", 2, 1, 6, 2),
    Sketcher.Constraint("Equal", 3, 1),
    Sketcher.Constraint("Radius", 2, Q("1.2 mm")),
    Sketcher.Constraint("DistanceX", 3, 1, 3, 2, Q("23.8 mm")),
])
pocket15 = body.newObject("PartDesign::Pocket", "Pocket014")
pocket15.Profile = sketch16
pocket15.Length = 16
pocket15.Reversed = True

doc.recompute()
